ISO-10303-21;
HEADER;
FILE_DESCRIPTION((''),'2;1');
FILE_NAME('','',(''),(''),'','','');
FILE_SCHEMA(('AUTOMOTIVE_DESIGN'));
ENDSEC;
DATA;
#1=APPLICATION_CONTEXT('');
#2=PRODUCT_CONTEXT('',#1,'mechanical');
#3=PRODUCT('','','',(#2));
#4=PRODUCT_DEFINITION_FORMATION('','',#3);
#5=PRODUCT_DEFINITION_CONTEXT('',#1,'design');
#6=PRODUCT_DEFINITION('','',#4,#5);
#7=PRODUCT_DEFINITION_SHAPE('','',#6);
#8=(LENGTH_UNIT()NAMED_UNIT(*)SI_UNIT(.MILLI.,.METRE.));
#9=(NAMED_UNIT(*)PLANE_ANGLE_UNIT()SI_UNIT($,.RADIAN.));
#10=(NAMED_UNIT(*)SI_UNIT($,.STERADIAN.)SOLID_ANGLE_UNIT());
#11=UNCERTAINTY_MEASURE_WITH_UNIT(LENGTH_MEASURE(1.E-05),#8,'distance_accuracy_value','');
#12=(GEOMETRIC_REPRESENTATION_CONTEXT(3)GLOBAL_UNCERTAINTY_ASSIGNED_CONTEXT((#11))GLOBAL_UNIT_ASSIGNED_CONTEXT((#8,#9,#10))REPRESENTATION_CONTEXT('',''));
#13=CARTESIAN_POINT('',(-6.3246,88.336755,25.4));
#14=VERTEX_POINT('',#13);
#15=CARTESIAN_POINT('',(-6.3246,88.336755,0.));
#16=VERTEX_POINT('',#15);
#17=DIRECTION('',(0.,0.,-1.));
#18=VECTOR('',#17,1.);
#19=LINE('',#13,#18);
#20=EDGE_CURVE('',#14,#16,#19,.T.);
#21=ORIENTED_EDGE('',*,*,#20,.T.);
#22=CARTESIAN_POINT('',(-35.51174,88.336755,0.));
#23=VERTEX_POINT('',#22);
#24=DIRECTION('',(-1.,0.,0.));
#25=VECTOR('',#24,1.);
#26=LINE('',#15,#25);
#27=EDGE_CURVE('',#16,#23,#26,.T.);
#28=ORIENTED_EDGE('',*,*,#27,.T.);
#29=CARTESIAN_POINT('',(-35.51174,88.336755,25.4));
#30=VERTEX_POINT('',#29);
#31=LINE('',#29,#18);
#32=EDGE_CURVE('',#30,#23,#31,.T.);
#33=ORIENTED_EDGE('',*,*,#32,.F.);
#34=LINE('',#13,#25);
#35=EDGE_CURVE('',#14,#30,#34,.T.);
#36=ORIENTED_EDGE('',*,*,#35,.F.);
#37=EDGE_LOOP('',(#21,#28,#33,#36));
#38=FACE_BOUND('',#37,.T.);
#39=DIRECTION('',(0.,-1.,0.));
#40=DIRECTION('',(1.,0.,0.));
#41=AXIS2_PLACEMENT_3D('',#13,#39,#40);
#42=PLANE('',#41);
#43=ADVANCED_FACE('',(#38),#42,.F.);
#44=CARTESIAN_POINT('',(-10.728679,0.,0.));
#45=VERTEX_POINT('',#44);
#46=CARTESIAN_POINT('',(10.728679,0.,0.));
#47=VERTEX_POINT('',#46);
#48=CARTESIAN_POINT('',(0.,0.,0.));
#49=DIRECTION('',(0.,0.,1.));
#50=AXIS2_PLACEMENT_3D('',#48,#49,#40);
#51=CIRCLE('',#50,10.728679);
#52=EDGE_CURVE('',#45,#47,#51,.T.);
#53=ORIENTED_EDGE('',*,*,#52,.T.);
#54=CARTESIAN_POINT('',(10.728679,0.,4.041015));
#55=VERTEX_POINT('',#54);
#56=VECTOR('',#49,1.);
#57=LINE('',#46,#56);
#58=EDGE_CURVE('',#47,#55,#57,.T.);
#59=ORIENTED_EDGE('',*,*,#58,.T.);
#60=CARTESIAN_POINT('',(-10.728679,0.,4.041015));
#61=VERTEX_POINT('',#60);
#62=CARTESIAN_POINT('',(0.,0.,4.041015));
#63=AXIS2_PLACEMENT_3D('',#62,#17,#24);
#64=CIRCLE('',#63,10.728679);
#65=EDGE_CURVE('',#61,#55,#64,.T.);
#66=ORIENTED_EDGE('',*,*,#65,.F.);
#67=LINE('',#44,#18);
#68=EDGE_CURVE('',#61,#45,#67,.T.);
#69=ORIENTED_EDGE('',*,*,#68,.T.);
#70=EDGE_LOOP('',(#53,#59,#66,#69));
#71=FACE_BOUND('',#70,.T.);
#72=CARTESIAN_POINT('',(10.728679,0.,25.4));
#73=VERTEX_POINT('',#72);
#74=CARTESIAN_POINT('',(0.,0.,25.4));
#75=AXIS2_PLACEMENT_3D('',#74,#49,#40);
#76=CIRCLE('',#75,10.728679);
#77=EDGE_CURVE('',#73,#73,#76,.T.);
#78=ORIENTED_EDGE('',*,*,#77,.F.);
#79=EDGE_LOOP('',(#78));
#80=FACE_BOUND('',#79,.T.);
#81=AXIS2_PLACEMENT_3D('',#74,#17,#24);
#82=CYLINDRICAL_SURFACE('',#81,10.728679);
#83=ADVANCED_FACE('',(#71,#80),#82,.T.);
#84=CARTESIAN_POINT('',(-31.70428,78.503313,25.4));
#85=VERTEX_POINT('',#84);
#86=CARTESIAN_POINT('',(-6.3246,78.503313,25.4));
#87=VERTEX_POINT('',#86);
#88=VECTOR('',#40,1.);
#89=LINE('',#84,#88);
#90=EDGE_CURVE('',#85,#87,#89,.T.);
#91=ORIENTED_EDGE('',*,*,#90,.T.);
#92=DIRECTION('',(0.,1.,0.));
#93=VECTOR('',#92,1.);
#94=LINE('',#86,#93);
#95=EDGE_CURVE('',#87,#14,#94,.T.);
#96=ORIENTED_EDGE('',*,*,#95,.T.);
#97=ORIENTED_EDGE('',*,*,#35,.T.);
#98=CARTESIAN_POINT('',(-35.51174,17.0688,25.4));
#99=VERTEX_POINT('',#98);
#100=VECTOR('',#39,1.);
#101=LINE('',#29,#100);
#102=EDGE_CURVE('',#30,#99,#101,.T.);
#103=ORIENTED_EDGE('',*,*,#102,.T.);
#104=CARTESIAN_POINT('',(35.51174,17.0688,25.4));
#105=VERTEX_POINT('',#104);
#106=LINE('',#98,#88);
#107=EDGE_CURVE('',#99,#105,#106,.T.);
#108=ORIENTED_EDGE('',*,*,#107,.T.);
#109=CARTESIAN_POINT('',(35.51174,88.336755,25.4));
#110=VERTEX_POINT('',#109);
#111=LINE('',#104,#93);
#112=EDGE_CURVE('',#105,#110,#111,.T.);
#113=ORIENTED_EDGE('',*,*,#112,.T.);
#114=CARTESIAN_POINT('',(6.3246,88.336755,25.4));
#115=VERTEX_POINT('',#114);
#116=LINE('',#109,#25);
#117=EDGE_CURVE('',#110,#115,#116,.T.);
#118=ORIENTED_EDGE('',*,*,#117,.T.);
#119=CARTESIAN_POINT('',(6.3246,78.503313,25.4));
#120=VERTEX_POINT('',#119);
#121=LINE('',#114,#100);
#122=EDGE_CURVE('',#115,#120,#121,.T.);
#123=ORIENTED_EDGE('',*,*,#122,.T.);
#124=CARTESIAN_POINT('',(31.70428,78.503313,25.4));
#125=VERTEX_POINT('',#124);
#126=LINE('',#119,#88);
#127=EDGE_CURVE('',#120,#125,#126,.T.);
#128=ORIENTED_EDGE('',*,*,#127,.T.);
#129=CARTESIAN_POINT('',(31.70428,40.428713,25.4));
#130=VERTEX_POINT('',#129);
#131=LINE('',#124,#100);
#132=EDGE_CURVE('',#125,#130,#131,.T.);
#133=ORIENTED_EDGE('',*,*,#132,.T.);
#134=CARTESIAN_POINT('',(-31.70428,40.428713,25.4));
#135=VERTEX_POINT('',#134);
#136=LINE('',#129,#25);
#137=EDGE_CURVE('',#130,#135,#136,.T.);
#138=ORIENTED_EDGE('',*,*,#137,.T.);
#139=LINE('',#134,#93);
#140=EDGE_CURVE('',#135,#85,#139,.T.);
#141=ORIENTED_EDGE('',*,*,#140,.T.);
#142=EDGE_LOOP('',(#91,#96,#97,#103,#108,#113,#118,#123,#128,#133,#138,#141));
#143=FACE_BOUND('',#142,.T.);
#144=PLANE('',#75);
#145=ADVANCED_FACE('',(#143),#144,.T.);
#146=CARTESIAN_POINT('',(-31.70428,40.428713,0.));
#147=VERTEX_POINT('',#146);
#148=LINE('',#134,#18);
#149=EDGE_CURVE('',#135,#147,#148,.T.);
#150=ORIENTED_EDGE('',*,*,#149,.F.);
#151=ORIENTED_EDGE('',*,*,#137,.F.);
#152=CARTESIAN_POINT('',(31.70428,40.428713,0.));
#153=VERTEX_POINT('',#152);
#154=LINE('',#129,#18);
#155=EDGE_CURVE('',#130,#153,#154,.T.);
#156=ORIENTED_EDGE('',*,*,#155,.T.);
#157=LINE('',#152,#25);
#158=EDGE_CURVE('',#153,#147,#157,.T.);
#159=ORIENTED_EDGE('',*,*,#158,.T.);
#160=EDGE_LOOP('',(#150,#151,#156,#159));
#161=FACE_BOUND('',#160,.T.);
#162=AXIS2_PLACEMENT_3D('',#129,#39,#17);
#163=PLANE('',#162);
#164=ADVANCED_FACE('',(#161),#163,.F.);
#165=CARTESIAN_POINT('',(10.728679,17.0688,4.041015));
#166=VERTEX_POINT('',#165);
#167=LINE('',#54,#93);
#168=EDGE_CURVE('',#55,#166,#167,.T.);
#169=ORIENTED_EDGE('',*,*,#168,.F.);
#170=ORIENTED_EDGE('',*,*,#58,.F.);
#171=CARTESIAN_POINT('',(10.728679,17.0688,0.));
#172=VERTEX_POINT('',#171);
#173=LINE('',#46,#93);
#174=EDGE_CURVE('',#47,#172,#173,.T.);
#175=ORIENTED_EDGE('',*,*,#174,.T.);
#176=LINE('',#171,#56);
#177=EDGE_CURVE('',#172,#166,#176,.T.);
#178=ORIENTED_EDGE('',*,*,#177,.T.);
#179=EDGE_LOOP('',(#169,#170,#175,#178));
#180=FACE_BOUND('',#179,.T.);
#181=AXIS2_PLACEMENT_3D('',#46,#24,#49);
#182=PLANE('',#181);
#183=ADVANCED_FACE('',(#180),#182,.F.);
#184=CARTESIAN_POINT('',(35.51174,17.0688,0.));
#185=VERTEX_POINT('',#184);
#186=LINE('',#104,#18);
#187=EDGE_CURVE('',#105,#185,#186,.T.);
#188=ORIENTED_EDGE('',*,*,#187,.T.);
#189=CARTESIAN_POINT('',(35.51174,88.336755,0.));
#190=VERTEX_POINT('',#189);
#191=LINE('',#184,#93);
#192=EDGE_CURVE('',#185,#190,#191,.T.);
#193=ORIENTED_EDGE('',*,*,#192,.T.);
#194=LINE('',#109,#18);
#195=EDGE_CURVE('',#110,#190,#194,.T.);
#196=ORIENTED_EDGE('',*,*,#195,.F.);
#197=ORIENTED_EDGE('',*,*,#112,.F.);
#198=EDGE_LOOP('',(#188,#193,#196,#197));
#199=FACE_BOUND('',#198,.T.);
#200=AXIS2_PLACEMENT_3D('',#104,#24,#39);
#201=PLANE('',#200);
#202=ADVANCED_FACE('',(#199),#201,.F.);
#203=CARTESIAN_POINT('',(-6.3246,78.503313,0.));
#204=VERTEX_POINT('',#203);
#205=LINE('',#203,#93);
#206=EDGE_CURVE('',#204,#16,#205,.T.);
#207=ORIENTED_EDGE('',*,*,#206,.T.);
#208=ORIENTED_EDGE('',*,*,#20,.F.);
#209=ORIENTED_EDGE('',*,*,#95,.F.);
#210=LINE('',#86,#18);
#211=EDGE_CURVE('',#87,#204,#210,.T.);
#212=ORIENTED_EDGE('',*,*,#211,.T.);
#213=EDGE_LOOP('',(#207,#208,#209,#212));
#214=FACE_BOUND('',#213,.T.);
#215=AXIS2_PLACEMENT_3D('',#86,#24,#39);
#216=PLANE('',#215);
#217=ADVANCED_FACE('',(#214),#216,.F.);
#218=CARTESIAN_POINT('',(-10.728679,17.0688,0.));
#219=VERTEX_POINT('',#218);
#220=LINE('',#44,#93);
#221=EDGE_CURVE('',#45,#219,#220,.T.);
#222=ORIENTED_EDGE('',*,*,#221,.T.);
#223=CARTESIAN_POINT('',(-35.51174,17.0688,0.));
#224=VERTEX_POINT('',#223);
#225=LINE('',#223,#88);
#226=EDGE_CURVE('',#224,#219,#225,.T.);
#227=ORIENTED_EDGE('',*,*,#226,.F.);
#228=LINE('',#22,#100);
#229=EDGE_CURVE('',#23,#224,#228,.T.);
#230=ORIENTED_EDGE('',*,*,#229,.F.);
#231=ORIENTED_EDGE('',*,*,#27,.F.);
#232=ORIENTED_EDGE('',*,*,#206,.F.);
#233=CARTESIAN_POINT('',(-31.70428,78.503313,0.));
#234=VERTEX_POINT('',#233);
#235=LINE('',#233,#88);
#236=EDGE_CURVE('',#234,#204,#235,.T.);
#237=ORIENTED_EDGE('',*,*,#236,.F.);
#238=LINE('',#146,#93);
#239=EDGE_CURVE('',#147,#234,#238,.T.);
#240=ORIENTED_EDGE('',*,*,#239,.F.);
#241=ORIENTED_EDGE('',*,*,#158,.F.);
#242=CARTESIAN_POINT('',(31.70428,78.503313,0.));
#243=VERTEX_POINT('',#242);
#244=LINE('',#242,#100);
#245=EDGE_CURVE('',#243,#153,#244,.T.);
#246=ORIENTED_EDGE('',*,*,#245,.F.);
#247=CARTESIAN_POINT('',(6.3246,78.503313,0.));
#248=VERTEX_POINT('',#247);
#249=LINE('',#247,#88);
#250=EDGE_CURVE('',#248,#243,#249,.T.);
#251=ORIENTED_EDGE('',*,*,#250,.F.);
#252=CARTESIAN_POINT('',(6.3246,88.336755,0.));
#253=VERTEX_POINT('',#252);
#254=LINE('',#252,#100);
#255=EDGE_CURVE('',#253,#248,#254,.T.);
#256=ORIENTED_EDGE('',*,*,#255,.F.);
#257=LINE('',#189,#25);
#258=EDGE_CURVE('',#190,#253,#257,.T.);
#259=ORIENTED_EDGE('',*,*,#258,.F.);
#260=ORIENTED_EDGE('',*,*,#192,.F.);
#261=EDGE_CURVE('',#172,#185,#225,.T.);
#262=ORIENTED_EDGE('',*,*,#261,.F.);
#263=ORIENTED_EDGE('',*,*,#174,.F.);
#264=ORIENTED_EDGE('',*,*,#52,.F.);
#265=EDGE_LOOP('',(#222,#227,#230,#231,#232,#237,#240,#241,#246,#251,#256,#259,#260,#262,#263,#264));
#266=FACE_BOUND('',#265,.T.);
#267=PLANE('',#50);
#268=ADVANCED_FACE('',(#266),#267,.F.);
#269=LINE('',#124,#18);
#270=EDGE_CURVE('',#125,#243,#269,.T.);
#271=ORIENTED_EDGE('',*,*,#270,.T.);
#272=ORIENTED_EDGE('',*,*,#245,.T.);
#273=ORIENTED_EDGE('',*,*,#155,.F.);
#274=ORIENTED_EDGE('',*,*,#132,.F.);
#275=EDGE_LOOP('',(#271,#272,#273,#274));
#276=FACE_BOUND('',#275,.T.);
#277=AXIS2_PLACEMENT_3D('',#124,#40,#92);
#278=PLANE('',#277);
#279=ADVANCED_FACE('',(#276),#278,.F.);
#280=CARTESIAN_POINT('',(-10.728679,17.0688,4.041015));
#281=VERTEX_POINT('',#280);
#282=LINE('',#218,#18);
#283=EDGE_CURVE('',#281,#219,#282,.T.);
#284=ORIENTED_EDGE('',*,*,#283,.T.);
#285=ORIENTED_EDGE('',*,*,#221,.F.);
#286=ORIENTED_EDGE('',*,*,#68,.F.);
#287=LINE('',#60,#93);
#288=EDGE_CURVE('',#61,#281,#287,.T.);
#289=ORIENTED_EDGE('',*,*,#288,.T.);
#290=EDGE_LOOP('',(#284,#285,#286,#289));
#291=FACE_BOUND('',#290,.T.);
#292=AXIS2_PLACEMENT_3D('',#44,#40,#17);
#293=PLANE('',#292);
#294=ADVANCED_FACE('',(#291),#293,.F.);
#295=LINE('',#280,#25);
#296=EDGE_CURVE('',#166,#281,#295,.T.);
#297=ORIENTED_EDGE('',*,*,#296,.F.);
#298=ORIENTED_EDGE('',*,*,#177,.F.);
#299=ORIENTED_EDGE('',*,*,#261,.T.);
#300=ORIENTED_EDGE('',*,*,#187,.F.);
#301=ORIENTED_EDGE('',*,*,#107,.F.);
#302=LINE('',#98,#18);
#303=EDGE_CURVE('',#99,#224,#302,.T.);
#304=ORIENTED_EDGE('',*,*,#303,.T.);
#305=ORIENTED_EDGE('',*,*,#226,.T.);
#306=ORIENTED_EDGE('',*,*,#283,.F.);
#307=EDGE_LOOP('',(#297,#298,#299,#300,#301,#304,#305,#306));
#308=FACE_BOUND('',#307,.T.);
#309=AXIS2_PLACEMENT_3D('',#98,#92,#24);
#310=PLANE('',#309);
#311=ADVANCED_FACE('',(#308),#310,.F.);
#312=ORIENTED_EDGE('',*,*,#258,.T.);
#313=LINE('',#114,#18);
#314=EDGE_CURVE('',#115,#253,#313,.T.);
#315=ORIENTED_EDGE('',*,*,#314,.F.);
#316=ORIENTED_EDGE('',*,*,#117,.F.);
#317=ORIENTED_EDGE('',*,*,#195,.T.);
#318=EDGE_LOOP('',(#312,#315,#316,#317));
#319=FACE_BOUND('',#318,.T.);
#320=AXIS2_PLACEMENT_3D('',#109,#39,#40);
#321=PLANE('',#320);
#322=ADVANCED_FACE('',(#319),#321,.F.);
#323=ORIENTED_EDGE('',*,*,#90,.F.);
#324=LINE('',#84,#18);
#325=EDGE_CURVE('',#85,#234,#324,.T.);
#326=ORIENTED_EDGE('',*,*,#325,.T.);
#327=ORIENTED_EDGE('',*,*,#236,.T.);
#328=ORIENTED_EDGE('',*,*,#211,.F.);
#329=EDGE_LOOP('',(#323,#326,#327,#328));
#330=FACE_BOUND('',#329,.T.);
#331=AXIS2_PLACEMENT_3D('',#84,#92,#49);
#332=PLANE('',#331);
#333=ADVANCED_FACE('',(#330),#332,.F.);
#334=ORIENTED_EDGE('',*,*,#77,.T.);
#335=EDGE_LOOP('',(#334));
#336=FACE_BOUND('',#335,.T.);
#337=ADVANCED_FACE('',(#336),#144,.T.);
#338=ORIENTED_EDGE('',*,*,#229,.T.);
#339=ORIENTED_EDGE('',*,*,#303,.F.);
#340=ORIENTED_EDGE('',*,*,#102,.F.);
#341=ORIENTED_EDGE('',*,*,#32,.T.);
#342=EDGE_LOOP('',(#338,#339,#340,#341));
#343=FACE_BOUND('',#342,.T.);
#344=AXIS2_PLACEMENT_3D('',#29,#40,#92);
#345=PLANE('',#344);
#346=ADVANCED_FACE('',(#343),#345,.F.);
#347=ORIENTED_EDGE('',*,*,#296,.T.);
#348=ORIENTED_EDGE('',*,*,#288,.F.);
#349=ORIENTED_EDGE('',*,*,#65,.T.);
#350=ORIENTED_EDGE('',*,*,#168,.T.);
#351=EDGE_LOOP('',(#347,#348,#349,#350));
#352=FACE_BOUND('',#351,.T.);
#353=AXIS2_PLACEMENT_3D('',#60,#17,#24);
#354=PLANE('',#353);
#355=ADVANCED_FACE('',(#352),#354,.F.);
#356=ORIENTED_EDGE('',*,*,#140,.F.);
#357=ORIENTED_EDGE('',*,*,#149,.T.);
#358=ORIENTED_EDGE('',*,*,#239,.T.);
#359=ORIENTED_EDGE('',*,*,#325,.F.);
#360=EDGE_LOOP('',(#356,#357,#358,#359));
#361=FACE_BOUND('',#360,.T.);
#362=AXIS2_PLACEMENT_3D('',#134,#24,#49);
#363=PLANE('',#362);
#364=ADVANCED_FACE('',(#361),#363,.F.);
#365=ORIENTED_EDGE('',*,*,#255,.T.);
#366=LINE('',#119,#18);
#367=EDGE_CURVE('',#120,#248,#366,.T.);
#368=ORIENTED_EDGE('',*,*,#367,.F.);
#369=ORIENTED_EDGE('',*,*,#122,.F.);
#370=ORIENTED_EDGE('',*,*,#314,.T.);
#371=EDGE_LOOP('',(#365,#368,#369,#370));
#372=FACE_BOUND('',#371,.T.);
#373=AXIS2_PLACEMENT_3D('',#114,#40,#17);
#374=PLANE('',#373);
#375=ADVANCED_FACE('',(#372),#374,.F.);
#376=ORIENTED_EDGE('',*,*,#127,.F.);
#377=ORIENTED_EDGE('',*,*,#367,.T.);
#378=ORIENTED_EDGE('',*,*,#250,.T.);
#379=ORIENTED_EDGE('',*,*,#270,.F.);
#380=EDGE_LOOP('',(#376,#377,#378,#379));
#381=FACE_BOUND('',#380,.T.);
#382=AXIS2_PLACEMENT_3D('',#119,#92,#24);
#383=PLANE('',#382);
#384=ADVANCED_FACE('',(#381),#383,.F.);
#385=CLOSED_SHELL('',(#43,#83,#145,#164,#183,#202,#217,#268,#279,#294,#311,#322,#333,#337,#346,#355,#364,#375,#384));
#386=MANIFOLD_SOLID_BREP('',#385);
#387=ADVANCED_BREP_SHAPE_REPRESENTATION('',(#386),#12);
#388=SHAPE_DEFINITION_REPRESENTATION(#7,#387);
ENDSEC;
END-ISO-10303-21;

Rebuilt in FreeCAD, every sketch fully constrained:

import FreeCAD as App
import Part
import Sketcher
Q = App.Units.Quantity


def add_polygon(sketch, points):
    """Adds a closed chain of lines whose ends are joined by coincident constraints."""
    first, n = sketch.GeometryCount, len(points)
    for a, b in zip(points, points[1:] + points[:1]):
        sketch.addGeometry(Part.LineSegment(App.Vector(*a, 0), App.Vector(*b, 0)), False)
    for i in range(n):
        sketch.addConstraint(Sketcher.Constraint("Coincident", first + i, 2, first + (i + 1) % n, 1))

doc = App.newDocument("Part")
body = doc.addObject("PartDesign::Body", "Body")

# Sketch on XY plane
sketch1 = body.newObject("Sketcher::SketchObject", "Sketch")
sketch1.AttachmentSupport = (doc.getObject("XY_Plane"), [""])
sketch1.MapMode = "FlatFace"
sketch1.addGeometry(Part.Circle(App.Vector(0, 0, 0), App.Vector(0, 0, 1), 11), False)
sketch1.addConstraint([
    Sketcher.Constraint("Coincident", 0, 3, -1, 1),
    Sketcher.Constraint("Diameter", 0, 21.457358),
])
pad1 = body.newObject("PartDesign::Pad", "Pad")
pad1.Profile = sketch1
pad1.Length = Q("1 in")
body2 = doc.addObject("PartDesign::Body", "Body001")

# Sketch on XY plane
sketch2 = body2.newObject("Sketcher::SketchObject", "Sketch001")
sketch2.AttachmentSupport = (doc.getObject("XY_Plane001"), [""])
sketch2.MapMode = "FlatFace"
add_polygon(sketch2, [(-36, 17), (36, 17), (36, 88), (6, 88), (6, 79), (32, 79), (32, 40), (-32, 40), (-32, 79), (-6, 79), (-6, 88), (-36, 88)])  # lines 0-11
sketch2.addConstraint([
    Sketcher.Constraint("Horizontal", 0),
    Sketcher.Constraint("Vertical", 1),
    Sketcher.Constraint("Horizontal", 2),
    Sketcher.Constraint("Vertical", 3),
    Sketcher.Constraint("Horizontal", 4),
    Sketcher.Constraint("Vertical", 5),
    Sketcher.Constraint("Horizontal", 6),
    Sketcher.Constraint("Vertical", 7),
    Sketcher.Constraint("Horizontal", 8),
    Sketcher.Constraint("Vertical", 9),
    Sketcher.Constraint("Horizontal", 10),
    Sketcher.Constraint("Vertical", 11),
    Sketcher.Constraint("Symmetric", 4, 2, 7, 2, -2),
    Sketcher.Constraint("Symmetric", 2, 2, 9, 2, -2),
    Sketcher.Constraint("Equal", 2, 10),
    Sketcher.Constraint("DistanceY", 5, 2, 5, 1, Q("1.499 in")),
    Sketcher.Constraint("DistanceX", 0, 1, 0, 2, Q("2.7962 in")),
    Sketcher.Constraint("DistanceX", 2, 2, 2, 1, Q("1.1491 in")),
    Sketcher.Constraint("DistanceX", 4, 1, 4, 2, Q("0.9992 in")),
    Sketcher.Constraint("DistanceY", -1, 1, 0, 2, Q("0.672 in")),
    Sketcher.Constraint("DistanceY", 3, 2, 3, 1, 9.833442),
    Sketcher.Constraint("DistanceY", 1, 1, 1, 2, 71.267955),
])
pad2 = body2.newObject("PartDesign::Pad", "Pad001")
pad2.Profile = sketch2
pad2.Length = Q("1 in")
body.AllowCompound = True
doc.recompute()

boolean = body.newObject("PartDesign::Boolean", "Boolean")
boolean.Type = "Fuse"
boolean.addObjects([body2])

# Sketch on XZ plane
sketch3 = body.newObject("Sketcher::SketchObject", "Sketch002")
sketch3.AttachmentSupport = (doc.getObject("XZ_Plane"), [""])
sketch3.MapMode = "FlatFace"
sketch3.AttachmentOffset = App.Placement(App.Vector(0, 0, -0.672 * 25.4), App.Rotation())
add_polygon(sketch3, [(-10.7, 4), (-10.7, 0), (10.7, 0), (10.7, 4)])  # lines 0-3
sketch3.addConstraint([
    Sketcher.Constraint("Vertical", 0),
    Sketcher.Constraint("Horizontal", 1),
    Sketcher.Constraint("Vertical", 2),
    Sketcher.Constraint("Horizontal", 3),
    Sketcher.Constraint("Symmetric", 0, 2, 1, 2, -1, 1),
    Sketcher.Constraint("DistanceX", 1, 1, 1, 2, 21.457358),
    Sketcher.Constraint("DistanceY", 0, 2, 0, 1, 4.041015),
])
pad3 = body.newObject("PartDesign::Pad", "Pad002")
pad3.Profile = sketch3
pad3.Length = Q("0.672 in")

doc.recompute()
